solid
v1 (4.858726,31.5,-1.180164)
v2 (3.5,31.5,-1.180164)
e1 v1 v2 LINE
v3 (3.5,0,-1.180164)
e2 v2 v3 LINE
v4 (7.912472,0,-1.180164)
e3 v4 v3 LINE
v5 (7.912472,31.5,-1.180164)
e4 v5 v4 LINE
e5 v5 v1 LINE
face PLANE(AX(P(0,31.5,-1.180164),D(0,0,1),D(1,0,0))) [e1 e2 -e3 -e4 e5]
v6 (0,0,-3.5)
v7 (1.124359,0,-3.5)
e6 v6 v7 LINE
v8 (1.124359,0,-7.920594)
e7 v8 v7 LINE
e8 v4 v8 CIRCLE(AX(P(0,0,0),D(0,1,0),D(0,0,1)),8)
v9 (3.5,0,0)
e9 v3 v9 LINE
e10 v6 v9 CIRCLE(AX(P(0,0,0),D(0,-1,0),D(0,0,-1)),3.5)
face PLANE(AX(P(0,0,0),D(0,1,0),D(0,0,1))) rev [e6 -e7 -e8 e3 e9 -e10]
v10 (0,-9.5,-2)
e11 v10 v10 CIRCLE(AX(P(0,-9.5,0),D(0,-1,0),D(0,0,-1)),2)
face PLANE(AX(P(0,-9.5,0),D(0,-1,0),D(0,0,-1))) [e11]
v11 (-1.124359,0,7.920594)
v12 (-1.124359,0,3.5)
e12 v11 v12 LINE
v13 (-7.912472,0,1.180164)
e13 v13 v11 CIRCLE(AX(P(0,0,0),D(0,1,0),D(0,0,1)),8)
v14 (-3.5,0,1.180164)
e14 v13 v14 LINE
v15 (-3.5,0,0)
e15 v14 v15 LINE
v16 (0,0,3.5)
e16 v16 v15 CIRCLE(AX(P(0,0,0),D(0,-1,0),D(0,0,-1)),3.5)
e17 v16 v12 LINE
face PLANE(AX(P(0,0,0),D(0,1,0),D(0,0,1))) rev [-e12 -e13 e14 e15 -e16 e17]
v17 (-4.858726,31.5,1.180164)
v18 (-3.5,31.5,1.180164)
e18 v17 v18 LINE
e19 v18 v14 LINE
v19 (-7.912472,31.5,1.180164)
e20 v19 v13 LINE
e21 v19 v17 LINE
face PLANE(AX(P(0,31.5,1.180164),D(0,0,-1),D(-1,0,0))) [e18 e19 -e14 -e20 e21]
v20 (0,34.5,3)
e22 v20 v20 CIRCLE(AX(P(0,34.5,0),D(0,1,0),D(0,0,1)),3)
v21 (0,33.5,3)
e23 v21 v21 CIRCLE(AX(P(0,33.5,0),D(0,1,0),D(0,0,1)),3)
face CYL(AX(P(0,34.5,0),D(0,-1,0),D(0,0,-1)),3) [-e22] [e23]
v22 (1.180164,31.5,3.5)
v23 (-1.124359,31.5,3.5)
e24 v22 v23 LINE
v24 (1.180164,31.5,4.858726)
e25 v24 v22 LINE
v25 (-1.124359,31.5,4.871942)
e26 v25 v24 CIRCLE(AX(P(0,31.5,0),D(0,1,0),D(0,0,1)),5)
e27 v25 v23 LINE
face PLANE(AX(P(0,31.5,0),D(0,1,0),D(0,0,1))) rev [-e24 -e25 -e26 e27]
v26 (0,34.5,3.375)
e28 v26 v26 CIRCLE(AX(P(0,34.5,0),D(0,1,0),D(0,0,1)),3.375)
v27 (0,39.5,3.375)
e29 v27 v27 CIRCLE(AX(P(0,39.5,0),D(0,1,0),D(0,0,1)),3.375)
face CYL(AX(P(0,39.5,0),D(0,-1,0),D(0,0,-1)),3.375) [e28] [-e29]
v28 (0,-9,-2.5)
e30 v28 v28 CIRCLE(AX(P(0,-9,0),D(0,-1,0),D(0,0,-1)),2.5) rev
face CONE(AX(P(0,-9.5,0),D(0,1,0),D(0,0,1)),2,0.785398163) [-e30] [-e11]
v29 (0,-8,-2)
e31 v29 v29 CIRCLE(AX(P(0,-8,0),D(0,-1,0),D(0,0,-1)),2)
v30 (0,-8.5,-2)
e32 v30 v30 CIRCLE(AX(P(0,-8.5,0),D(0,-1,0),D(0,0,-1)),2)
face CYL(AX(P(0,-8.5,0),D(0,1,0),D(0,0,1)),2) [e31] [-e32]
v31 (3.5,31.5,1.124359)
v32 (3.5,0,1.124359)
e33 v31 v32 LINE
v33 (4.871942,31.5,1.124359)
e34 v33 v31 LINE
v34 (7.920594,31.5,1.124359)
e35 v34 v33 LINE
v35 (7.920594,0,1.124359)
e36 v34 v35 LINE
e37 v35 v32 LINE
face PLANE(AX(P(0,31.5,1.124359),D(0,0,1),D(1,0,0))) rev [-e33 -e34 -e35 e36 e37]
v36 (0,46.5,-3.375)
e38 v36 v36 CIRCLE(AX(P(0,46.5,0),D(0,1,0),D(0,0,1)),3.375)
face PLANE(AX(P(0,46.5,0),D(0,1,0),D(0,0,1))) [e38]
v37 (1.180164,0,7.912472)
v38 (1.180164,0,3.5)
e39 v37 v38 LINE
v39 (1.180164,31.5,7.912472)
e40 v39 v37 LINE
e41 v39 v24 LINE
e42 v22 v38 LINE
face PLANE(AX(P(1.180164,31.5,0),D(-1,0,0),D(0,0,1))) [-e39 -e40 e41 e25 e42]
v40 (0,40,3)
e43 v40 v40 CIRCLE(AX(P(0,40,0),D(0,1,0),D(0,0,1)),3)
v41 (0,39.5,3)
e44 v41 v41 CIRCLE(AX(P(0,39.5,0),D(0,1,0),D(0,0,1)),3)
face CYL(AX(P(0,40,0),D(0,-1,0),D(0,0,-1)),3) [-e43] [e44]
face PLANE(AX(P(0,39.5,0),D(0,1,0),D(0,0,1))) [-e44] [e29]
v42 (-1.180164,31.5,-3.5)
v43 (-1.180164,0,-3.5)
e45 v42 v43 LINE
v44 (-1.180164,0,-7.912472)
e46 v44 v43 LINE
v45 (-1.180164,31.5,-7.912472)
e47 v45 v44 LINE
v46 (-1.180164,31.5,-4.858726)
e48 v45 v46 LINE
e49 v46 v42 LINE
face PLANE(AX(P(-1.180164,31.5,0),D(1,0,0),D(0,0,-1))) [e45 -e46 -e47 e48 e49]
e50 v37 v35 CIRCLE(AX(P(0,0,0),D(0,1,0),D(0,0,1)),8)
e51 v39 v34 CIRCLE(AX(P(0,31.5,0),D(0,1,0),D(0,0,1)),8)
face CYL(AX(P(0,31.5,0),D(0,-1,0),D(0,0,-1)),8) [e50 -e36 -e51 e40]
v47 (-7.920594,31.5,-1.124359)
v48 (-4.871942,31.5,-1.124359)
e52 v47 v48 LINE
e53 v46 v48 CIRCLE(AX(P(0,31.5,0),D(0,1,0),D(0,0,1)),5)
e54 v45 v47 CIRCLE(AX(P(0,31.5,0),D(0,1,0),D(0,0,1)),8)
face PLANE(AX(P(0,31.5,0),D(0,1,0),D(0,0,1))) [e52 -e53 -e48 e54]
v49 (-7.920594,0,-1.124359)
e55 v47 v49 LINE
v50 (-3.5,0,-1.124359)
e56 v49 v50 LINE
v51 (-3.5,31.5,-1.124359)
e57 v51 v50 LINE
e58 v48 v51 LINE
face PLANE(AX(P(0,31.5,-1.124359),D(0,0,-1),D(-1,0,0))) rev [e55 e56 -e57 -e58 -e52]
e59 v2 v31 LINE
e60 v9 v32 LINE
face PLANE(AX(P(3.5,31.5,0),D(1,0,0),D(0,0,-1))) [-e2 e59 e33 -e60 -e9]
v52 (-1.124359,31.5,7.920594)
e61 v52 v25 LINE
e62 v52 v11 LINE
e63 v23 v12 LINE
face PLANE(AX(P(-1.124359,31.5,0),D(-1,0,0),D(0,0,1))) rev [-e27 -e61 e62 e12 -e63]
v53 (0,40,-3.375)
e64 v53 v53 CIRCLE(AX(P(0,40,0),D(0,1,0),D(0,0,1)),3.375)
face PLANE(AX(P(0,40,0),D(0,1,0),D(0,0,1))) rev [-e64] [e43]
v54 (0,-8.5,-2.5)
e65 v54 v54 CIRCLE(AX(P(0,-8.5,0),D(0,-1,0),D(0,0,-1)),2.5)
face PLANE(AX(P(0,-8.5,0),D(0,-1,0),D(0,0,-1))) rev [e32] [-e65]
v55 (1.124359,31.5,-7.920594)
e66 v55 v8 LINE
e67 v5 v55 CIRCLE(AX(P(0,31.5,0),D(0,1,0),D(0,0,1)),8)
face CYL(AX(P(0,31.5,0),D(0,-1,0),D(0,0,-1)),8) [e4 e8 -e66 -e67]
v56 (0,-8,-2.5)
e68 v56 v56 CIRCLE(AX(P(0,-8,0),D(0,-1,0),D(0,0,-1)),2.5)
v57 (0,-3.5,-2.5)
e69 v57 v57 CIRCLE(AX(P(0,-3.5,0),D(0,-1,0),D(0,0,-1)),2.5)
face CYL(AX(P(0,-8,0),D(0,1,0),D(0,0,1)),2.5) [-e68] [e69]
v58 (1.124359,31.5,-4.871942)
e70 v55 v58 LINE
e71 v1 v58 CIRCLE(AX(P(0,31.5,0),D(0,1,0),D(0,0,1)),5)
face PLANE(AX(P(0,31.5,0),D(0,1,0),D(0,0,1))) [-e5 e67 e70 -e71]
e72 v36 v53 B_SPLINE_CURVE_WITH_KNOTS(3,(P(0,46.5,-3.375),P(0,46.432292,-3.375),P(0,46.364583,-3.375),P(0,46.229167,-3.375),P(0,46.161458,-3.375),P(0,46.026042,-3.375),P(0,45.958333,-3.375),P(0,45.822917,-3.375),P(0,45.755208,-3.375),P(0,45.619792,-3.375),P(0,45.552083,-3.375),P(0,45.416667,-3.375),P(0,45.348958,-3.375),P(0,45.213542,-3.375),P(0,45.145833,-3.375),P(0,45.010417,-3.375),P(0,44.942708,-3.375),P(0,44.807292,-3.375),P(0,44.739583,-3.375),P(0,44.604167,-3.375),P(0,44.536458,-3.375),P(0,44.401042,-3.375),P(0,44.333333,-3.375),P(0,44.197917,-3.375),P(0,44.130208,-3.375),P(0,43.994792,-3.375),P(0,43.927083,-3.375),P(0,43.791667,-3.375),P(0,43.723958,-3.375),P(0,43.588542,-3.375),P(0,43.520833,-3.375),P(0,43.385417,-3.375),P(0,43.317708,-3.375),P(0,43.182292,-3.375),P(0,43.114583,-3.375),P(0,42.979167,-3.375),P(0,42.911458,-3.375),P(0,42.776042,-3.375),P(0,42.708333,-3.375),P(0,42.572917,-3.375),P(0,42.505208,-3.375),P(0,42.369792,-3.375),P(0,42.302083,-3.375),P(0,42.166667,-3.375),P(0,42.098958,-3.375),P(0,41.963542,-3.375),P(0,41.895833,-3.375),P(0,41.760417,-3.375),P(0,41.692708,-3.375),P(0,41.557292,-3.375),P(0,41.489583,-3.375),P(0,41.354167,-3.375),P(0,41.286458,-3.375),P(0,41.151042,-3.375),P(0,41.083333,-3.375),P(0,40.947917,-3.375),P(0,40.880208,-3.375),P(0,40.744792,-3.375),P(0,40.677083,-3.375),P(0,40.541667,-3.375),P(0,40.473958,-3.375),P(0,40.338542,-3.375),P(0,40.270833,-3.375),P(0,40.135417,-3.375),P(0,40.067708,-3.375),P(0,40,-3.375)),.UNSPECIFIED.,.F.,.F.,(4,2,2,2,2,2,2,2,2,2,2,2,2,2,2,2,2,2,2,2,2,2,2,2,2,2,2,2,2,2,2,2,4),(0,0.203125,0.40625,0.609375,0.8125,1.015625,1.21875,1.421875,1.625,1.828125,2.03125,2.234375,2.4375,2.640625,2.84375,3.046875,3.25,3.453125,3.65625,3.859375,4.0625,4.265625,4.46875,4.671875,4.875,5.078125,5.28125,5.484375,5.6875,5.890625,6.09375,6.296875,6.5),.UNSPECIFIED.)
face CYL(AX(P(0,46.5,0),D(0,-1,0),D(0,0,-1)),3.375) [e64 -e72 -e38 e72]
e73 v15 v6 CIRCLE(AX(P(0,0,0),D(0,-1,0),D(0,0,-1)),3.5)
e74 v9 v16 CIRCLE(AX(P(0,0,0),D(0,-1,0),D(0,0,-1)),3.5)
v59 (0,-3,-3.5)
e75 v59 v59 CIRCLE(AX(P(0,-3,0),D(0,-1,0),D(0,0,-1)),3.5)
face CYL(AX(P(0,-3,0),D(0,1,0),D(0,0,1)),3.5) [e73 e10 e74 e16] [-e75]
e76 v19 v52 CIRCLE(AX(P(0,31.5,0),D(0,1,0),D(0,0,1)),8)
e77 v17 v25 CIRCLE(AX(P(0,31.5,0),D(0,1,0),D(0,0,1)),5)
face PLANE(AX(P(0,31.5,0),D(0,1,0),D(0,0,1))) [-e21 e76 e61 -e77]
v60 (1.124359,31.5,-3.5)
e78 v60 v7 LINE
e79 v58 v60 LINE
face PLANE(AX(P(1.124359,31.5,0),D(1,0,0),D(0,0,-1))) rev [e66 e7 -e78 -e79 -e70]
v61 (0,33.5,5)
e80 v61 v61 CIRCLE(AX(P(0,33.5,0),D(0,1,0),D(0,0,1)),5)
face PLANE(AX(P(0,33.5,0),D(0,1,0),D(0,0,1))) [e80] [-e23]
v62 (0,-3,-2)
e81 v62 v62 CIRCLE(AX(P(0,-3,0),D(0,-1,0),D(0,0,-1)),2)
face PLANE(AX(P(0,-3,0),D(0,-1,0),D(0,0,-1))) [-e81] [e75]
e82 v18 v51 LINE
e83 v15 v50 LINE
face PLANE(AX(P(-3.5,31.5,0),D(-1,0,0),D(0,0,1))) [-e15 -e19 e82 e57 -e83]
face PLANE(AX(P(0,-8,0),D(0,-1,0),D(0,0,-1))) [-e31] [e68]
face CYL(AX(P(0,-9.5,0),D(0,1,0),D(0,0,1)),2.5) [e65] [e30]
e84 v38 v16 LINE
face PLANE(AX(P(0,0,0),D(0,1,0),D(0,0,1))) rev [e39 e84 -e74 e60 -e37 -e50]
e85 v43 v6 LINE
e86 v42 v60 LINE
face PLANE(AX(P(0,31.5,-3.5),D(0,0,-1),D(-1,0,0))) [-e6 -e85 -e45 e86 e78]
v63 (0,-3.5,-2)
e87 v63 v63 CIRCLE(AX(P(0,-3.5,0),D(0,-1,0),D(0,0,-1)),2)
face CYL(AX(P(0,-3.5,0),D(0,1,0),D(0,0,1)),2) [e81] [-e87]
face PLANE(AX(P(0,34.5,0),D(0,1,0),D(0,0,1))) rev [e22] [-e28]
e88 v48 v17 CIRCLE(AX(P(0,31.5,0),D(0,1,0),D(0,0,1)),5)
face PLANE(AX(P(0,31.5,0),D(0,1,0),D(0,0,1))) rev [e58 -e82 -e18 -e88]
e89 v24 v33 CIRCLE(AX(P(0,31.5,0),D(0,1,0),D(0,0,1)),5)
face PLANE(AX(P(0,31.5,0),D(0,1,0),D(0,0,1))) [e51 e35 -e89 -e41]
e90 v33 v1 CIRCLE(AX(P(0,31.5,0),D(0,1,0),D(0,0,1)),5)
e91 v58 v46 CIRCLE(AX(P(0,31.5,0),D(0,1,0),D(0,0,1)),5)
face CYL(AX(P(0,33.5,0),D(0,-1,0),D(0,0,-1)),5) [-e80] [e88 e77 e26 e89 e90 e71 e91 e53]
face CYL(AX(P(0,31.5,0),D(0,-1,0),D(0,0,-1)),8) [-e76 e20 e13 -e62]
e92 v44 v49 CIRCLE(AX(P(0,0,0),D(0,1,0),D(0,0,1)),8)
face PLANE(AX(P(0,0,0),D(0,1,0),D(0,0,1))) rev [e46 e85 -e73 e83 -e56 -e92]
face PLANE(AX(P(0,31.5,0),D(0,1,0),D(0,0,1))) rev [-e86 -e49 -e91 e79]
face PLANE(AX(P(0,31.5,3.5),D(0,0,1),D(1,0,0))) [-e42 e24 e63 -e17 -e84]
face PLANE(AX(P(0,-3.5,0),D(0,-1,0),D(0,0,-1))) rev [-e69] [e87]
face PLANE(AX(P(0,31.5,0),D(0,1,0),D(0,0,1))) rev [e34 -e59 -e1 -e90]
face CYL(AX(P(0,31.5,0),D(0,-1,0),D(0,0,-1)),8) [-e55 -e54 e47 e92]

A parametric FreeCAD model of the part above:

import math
import FreeCAD as App
import Part
import Sketcher

V = App.Vector


def edges_at(feature, points):
    """Names of the edges that pass closest to the given points."""
    edges = feature.Shape.Edges
    near = lambda p: min(range(len(edges)), key=lambda i: edges[i].distToShape(Part.Vertex(*p))[0])
    return sorted({f"Edge{near(p) + 1}" for p in points})

doc = App.newDocument("Part")
body = doc.addObject("PartDesign::Body", "Body")

# Sketch on XZ plane
sketch1 = doc.addObject("Sketcher::SketchObject", "Sketch")
body.addObject(sketch1)
sketch1.AttachmentSupport = (doc.XZ_Plane, [""])
sketch1.MapMode = "FlatFace"
sketch1.addGeometry(Part.LineSegment(V(1.180164, 3.5, 0), V(1.180164, 7.912472, 0)), False)
sketch1.addGeometry(Part.ArcOfCircle(Part.Circle(V(0, 0, 0), V(0, 0, 1), 8), math.radians(8.079378), math.radians(81.516739)), False)
sketch1.addGeometry(Part.LineSegment(V(7.920594, 1.124359, 0), V(3.5, 1.124359, 0)), False)
sketch1.addGeometry(Part.LineSegment(V(3.5, 1.124359, 0), V(3.5, -1.180164, 0)), False)
sketch1.addGeometry(Part.LineSegment(V(3.5, -1.180164, 0), V(7.912472, -1.180164, 0)), False)
sketch1.addGeometry(Part.ArcOfCircle(Part.Circle(V(0, 0, 0), V(0, 0, 1), 8), math.radians(-81.920622), math.radians(-8.483261)), False)
sketch1.addGeometry(Part.LineSegment(V(1.124359, -7.920594, 0), V(1.124359, -3.5, 0)), False)
sketch1.addGeometry(Part.LineSegment(V(1.124359, -3.5, 0), V(-1.180164, -3.5, 0)), False)
sketch1.addGeometry(Part.LineSegment(V(-1.180164, -3.5, 0), V(-1.180164, -7.912472, 0)), False)
sketch1.addGeometry(Part.ArcOfCircle(Part.Circle(V(0, 0, 0), V(0, 0, 1), 8), math.radians(-171.920622), math.radians(-98.483261)), False)
sketch1.addGeometry(Part.LineSegment(V(-7.920594, -1.124359, 0), V(-3.5, -1.124359, 0)), False)
sketch1.addGeometry(Part.LineSegment(V(-3.5, -1.124359, 0), V(-3.5, 1.180164, 0)), False)
sketch1.addGeometry(Part.LineSegment(V(-3.5, 1.180164, 0), V(-7.912472, 1.180164, 0)), False)
sketch1.addGeometry(Part.ArcOfCircle(Part.Circle(V(0, 0, 0), V(0, 0, 1), 8), math.radians(98.079378), math.radians(171.516739)), False)
sketch1.addGeometry(Part.LineSegment(V(-1.124359, 7.920594, 0), V(-1.124359, 3.5, 0)), False)
sketch1.addGeometry(Part.LineSegment(V(-1.124359, 3.5, 0), V(1.180164, 3.5, 0)), False)
sketch1.addConstraint(Sketcher.Constraint("Coincident", 0, 2, 1, 2))
sketch1.addConstraint(Sketcher.Constraint("Coincident", 1, 1, 2, 1))
sketch1.addConstraint(Sketcher.Constraint("Coincident", 2, 2, 3, 1))
sketch1.addConstraint(Sketcher.Constraint("Coincident", 3, 2, 4, 1))
sketch1.addConstraint(Sketcher.Constraint("Coincident", 4, 2, 5, 2))
sketch1.addConstraint(Sketcher.Constraint("Coincident", 5, 1, 6, 1))
sketch1.addConstraint(Sketcher.Constraint("Coincident", 6, 2, 7, 1))
sketch1.addConstraint(Sketcher.Constraint("Coincident", 7, 2, 8, 1))
sketch1.addConstraint(Sketcher.Constraint("Coincident", 8, 2, 9, 2))
sketch1.addConstraint(Sketcher.Constraint("Coincident", 9, 1, 10, 1))
sketch1.addConstraint(Sketcher.Constraint("Coincident", 10, 2, 11, 1))
sketch1.addConstraint(Sketcher.Constraint("Coincident", 11, 2, 12, 1))
sketch1.addConstraint(Sketcher.Constraint("Coincident", 12, 2, 13, 2))
sketch1.addConstraint(Sketcher.Constraint("Coincident", 13, 1, 14, 1))
sketch1.addConstraint(Sketcher.Constraint("Coincident", 14, 2, 15, 1))
sketch1.addConstraint(Sketcher.Constraint("Coincident", 15, 2, 0, 1))
sketch1.addConstraint(Sketcher.Constraint("Vertical", 0))
sketch1.addConstraint(Sketcher.Constraint("Horizontal", 2))
sketch1.addConstraint(Sketcher.Constraint("Vertical", 3))
sketch1.addConstraint(Sketcher.Constraint("Horizontal", 4))
sketch1.addConstraint(Sketcher.Constraint("Vertical", 6))
sketch1.addConstraint(Sketcher.Constraint("Horizontal", 7))
sketch1.addConstraint(Sketcher.Constraint("Vertical", 8))
sketch1.addConstraint(Sketcher.Constraint("Horizontal", 10))
sketch1.addConstraint(Sketcher.Constraint("Vertical", 11))
sketch1.addConstraint(Sketcher.Constraint("Horizontal", 12))
sketch1.addConstraint(Sketcher.Constraint("Vertical", 14))
sketch1.addConstraint(Sketcher.Constraint("Horizontal", 15))
sketch1.addConstraint(Sketcher.Constraint("Coincident", 1, 3, -1, 1))
sketch1.addConstraint(Sketcher.Constraint("Coincident", 5, 3, -1, 1))
sketch1.addConstraint(Sketcher.Constraint("Coincident", 9, 3, -1, 1))
sketch1.addConstraint(Sketcher.Constraint("Coincident", 13, 3, -1, 1))
sketch1.addConstraint(Sketcher.Constraint("Equal", 1, 5))
sketch1.addConstraint(Sketcher.Constraint("Equal", 5, 9))
sketch1.addConstraint(Sketcher.Constraint("Equal", 9, 13))
sketch1.addConstraint(Sketcher.Constraint("Symmetric", 2, 2, 10, 2, -1, 1))
sketch1.addConstraint(Sketcher.Constraint("Symmetric", 6, 2, 14, 2, -1, 1))
sketch1.addConstraint(Sketcher.Constraint("Equal", 4, 12))
sketch1.addConstraint(Sketcher.Constraint("Equal", 7, 15))
sketch1.addConstraint(Sketcher.Constraint("Equal", 12, 0))
sketch1.addConstraint(Sketcher.Constraint("Equal", 15, 3))
sketch1.addConstraint(Sketcher.Constraint("Equal", 10, 6))
sketch1.addConstraint(Sketcher.Constraint("Radius", 1, 8.0))
sketch1.addConstraint(Sketcher.Constraint("DistanceX", -1, 1, 2, 2, 3.5))
sketch1.addConstraint(Sketcher.Constraint("DistanceX", 2, 2, 2, 1, 4.420594))
sketch1.addConstraint(Sketcher.Constraint("DistanceX", 4, 1, 4, 2, 4.412472))
pad1 = doc.addObject("PartDesign::Pad", "Pad")
body.addObject(pad1)
pad1.Profile = sketch1
pad1.Length = 31.5
pad1.Reversed = True

# Sketch on XZ plane
sketch2 = doc.addObject("Sketcher::SketchObject", "Sketch001")
body.addObject(sketch2)
sketch2.AttachmentSupport = (doc.XZ_Plane, [""])
sketch2.MapMode = "FlatFace"
sketch2.addGeometry(Part.Circle(V(0, 0, 0), V(0, 0, 1), 3.5), False)
sketch2.addConstraint(Sketcher.Constraint("Coincident", 0, 3, -1, 1))
sketch2.addConstraint(Sketcher.Constraint("Diameter", 0, 7.0))
pad2 = doc.addObject("PartDesign::Pad", "Pad001")
body.addObject(pad2)
pad2.Profile = sketch2
pad2.Length = 3

# Sketch on XZ plane
sketch3 = doc.addObject("Sketcher::SketchObject", "Sketch002")
body.addObject(sketch3)
sketch3.AttachmentSupport = (doc.XZ_Plane, [""])
sketch3.MapMode = "FlatFace"
sketch3.AttachmentOffset = App.Placement(V(0, 0, 3), App.Rotation())
sketch3.addGeometry(Part.Circle(V(0, 0, 0), V(0, 0, 1), 2), False)
sketch3.addConstraint(Sketcher.Constraint("Coincident", 0, 3, -1, 1))
sketch3.addConstraint(Sketcher.Constraint("Diameter", 0, 4.0))
pad3 = doc.addObject("PartDesign::Pad", "Pad002")
body.addObject(pad3)
pad3.Profile = sketch3
pad3.Length = 0.5

# Sketch on XZ plane
sketch4 = doc.addObject("Sketcher::SketchObject", "Sketch003")
body.addObject(sketch4)
sketch4.AttachmentSupport = (doc.XZ_Plane, [""])
sketch4.MapMode = "FlatFace"
sketch4.AttachmentOffset = App.Placement(V(0, 0, 3.5), App.Rotation())
sketch4.addGeometry(Part.Circle(V(0, 0, 0), V(0, 0, 1), 2.5), False)
sketch4.addConstraint(Sketcher.Constraint("Coincident", 0, 3, -1, 1))
sketch4.addConstraint(Sketcher.Constraint("Diameter", 0, 5.0))
pad4 = doc.addObject("PartDesign::Pad", "Pad003")
body.addObject(pad4)
pad4.Profile = sketch4
pad4.Length = 4.5

# Sketch on XZ plane
sketch5 = doc.addObject("Sketcher::SketchObject", "Sketch004")
body.addObject(sketch5)
sketch5.AttachmentSupport = (doc.XZ_Plane, [""])
sketch5.MapMode = "FlatFace"
sketch5.AttachmentOffset = App.Placement(V(0, 0, 8), App.Rotation())
sketch5.addGeometry(Part.Circle(V(0, 0, 0), V(0, 0, 1), 2), False)
sketch5.addConstraint(Sketcher.Constraint("Coincident", 0, 3, -1, 1))
sketch5.addConstraint(Sketcher.Constraint("Diameter", 0, 4.0))
pad5 = doc.addObject("PartDesign::Pad", "Pad004")
body.addObject(pad5)
pad5.Profile = sketch5
pad5.Length = 0.5

# Sketch on XZ plane
sketch6 = doc.addObject("Sketcher::SketchObject", "Sketch005")
body.addObject(sketch6)
sketch6.AttachmentSupport = (doc.XZ_Plane, [""])
sketch6.MapMode = "FlatFace"
sketch6.AttachmentOffset = App.Placement(V(0, 0, 8.5), App.Rotation())
sketch6.addGeometry(Part.Circle(V(0, 0, 0), V(0, 0, 1), 2.5), False)
sketch6.addConstraint(Sketcher.Constraint("Coincident", 0, 3, -1, 1))
sketch6.addConstraint(Sketcher.Constraint("Diameter", 0, 5.0))
pad6 = doc.addObject("PartDesign::Pad", "Pad005")
body.addObject(pad6)
pad6.Profile = sketch6
pad6.Length = 1
doc.recompute()

chamfer = doc.addObject("PartDesign::Chamfer", "Chamfer")
body.addObject(chamfer)
chamfer.Base = (pad6, edges_at(pad6, [(0, -9.5, 2.5)]))
chamfer.Size = 0.5

# Sketch on XZ plane
sketch7 = doc.addObject("Sketcher::SketchObject", "Sketch006")
body.addObject(sketch7)
sketch7.AttachmentSupport = (doc.XZ_Plane, [""])
sketch7.MapMode = "FlatFace"
sketch7.AttachmentOffset = App.Placement(V(0, 0, -31.5), App.Rotation())
sketch7.addGeometry(Part.Circle(V(0, 0, 0), V(0, 0, 1), 5), False)
sketch7.addConstraint(Sketcher.Constraint("Coincident", 0, 3, -1, 1))
sketch7.addConstraint(Sketcher.Constraint("Diameter", 0, 10.0))
pad7 = doc.addObject("PartDesign::Pad", "Pad006")
body.addObject(pad7)
pad7.Profile = sketch7
pad7.Length = 2
pad7.Reversed = True

# Sketch on XZ plane
sketch8 = doc.addObject("Sketcher::SketchObject", "Sketch007")
body.addObject(sketch8)
sketch8.AttachmentSupport = (doc.XZ_Plane, [""])
sketch8.MapMode = "FlatFace"
sketch8.AttachmentOffset = App.Placement(V(0, 0, -33.5), App.Rotation())
sketch8.addGeometry(Part.Circle(V(0, 0, 0), V(0, 0, 1), 3), False)
sketch8.addConstraint(Sketcher.Constraint("Coincident", 0, 3, -1, 1))
sketch8.addConstraint(Sketcher.Constraint("Diameter", 0, 6.0))
pad8 = doc.addObject("PartDesign::Pad", "Pad007")
body.addObject(pad8)
pad8.Profile = sketch8
pad8.Length = 1
pad8.Reversed = True

# Sketch on XZ plane
sketch9 = doc.addObject("Sketcher::SketchObject", "Sketch008")
body.addObject(sketch9)
sketch9.AttachmentSupport = (doc.XZ_Plane, [""])
sketch9.MapMode = "FlatFace"
sketch9.AttachmentOffset = App.Placement(V(0, 0, -34.5), App.Rotation())
sketch9.addGeometry(Part.Circle(V(0, 0, 0), V(0, 0, 1), 3.375), False)
sketch9.addConstraint(Sketcher.Constraint("Coincident", 0, 3, -1, 1))
sketch9.addConstraint(Sketcher.Constraint("Diameter", 0, 6.75))
pad9 = doc.addObject("PartDesign::Pad", "Pad008")
body.addObject(pad9)
pad9.Profile = sketch9
pad9.Length = 5
pad9.Reversed = True

# Sketch on XZ plane
sketch10 = doc.addObject("Sketcher::SketchObject", "Sketch009")
body.addObject(sketch10)
sketch10.AttachmentSupport = (doc.XZ_Plane, [""])
sketch10.MapMode = "FlatFace"
sketch10.AttachmentOffset = App.Placement(V(0, 0, -39.5), App.Rotation())
sketch10.addGeometry(Part.Circle(V(0, 0, 0), V(0, 0, 1), 3), False)
sketch10.addConstraint(Sketcher.Constraint("Coincident", 0, 3, -1, 1))
sketch10.addConstraint(Sketcher.Constraint("Diameter", 0, 6.0))
pad10 = doc.addObject("PartDesign::Pad", "Pad009")
body.addObject(pad10)
pad10.Profile = sketch10
pad10.Length = 0.5
pad10.Reversed = True

# Sketch on XZ plane
sketch11 = doc.addObject("Sketcher::SketchObject", "Sketch010")
body.addObject(sketch11)
sketch11.AttachmentSupport = (doc.XZ_Plane, [""])
sketch11.MapMode = "FlatFace"
sketch11.AttachmentOffset = App.Placement(V(0, 0, -40), App.Rotation())
sketch11.addGeometry(Part.Circle(V(0, 0, 0), V(0, 0, 1), 3.375), False)
sketch11.addConstraint(Sketcher.Constraint("Coincident", 0, 3, -1, 1))
sketch11.addConstraint(Sketcher.Constraint("Diameter", 0, 6.75))
pad11 = doc.addObject("PartDesign::Pad", "Pad010")
body.addObject(pad11)
pad11.Profile = sketch11
pad11.Length = 6.5
pad11.Reversed = True

doc.recompute()
